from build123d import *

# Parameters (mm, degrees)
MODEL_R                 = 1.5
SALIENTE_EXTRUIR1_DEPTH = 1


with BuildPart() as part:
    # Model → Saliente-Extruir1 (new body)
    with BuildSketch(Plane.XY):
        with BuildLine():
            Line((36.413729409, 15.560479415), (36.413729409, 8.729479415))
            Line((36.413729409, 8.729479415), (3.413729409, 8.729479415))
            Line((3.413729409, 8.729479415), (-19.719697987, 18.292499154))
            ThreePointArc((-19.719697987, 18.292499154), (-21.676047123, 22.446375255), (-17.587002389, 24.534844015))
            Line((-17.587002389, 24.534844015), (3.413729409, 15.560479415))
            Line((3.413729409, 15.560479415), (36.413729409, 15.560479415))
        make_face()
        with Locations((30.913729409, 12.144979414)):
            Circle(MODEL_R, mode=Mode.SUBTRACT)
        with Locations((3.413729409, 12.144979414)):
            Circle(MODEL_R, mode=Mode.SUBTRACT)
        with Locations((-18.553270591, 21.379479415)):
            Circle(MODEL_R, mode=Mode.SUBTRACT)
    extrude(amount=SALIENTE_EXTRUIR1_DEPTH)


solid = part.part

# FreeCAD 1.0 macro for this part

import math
import FreeCAD as App
import Part
import Sketcher

doc = App.newDocument("Part")
body = doc.addObject("PartDesign::Body", "Body")

# Sketch on XY plane
sketch1 = body.newObject("Sketcher::SketchObject", "Sketch")
sketch1.AttachmentSupport = (doc.getObject("XY_Plane"), [""])
sketch1.MapMode = "FlatFace"
sketch1.addGeometry([
    Part.LineSegment(App.Vector(36.4, 8.7, 0), App.Vector(36.4, 15.6, 0)),  # 0
    Part.LineSegment(App.Vector(36.4, 15.6, 0), App.Vector(3.4, 15.6, 0)),  # 1
    Part.LineSegment(App.Vector(3.4, 15.6, 0), App.Vector(-17.6, 24.5, 0)),  # 2
    Part.ArcOfCircle(Part.Circle(App.Vector(-18.6, 21.4, 0), App.Vector(0, 0, 1), 3.3), math.radians(73), math.radians(249)),  # 3
    Part.LineSegment(App.Vector(-19.7, 18.3, 0), App.Vector(3.4, 8.7, 0)),  # 4
    Part.LineSegment(App.Vector(3.4, 8.7, 0), App.Vector(36.4, 8.7, 0)),  # 5
    Part.Circle(App.Vector(30.9, 12.1, 0), App.Vector(0, 0, 1), 1.5),  # 6
    Part.Circle(App.Vector(3.4, 12.1, 0), App.Vector(0, 0, 1), 1.5),  # 7
    Part.Circle(App.Vector(-18.6, 21.4, 0), App.Vector(0, 0, 1), 1.5),  # 8
], False)
sketch1.addConstraint([
    Sketcher.Constraint("Coincident", 0, 2, 1, 1),
    Sketcher.Constraint("Coincident", 1, 2, 2, 1),
    Sketcher.Constraint("Coincident", 2, 2, 3, 1),
    Sketcher.Constraint("Coincident", 3, 2, 4, 1),
    Sketcher.Constraint("Coincident", 4, 2, 5, 1),
    Sketcher.Constraint("Coincident", 5, 2, 0, 1),
    Sketcher.Constraint("Vertical", 0),
    Sketcher.Constraint("Horizontal", 1),
    Sketcher.Constraint("Horizontal", 5),
    Sketcher.Constraint("Coincident", 8, 3, 3, 3),
    Sketcher.Constraint("Equal", 6, 7),
    Sketcher.Constraint("Equal", 7, 8),
    Sketcher.Constraint("Horizontal", 6, 3, 7, 3),
    Sketcher.Constraint("Vertical", 7, 3, 1, 2),
    Sketcher.Constraint("Vertical", 1, 2, 4, 2),
    Sketcher.Constraint("Diameter", 6, 3.0),
    Sketcher.Constraint("Radius", 3, 3.3),
    Sketcher.Constraint("DistanceX", 1, 2, 1, 1, 33.0),
    Sketcher.Constraint("DistanceX", 7, 3, 6, 3, 27.5),
    Sketcher.Constraint("DistanceY", 0, 1, 0, 2, 6.831),
    Sketcher.Constraint("DistanceY", 4, 2, 8, 3, 12.65),
    Sketcher.Constraint("DistanceX", 3, 3, 6, 3, 49.467),
    Sketcher.Constraint("DistanceY", -1, 1, 3, 2, 18.292499),
    Sketcher.Constraint("DistanceY", 6, 3, 3, 3, 9.2345),
    Sketcher.Constraint("DistanceX", 3, 3, -1, 1, 18.553271),
    Sketcher.Constraint("DistanceY", -1, 1, 3, 3, 21.379479),
    Sketcher.Constraint("DistanceX", 8, 3, 2, 2, 0.966268),
])
pad1 = body.newObject("PartDesign::Pad", "Pad")
pad1.Profile = sketch1
pad1.Length = 1

doc.recompute()
